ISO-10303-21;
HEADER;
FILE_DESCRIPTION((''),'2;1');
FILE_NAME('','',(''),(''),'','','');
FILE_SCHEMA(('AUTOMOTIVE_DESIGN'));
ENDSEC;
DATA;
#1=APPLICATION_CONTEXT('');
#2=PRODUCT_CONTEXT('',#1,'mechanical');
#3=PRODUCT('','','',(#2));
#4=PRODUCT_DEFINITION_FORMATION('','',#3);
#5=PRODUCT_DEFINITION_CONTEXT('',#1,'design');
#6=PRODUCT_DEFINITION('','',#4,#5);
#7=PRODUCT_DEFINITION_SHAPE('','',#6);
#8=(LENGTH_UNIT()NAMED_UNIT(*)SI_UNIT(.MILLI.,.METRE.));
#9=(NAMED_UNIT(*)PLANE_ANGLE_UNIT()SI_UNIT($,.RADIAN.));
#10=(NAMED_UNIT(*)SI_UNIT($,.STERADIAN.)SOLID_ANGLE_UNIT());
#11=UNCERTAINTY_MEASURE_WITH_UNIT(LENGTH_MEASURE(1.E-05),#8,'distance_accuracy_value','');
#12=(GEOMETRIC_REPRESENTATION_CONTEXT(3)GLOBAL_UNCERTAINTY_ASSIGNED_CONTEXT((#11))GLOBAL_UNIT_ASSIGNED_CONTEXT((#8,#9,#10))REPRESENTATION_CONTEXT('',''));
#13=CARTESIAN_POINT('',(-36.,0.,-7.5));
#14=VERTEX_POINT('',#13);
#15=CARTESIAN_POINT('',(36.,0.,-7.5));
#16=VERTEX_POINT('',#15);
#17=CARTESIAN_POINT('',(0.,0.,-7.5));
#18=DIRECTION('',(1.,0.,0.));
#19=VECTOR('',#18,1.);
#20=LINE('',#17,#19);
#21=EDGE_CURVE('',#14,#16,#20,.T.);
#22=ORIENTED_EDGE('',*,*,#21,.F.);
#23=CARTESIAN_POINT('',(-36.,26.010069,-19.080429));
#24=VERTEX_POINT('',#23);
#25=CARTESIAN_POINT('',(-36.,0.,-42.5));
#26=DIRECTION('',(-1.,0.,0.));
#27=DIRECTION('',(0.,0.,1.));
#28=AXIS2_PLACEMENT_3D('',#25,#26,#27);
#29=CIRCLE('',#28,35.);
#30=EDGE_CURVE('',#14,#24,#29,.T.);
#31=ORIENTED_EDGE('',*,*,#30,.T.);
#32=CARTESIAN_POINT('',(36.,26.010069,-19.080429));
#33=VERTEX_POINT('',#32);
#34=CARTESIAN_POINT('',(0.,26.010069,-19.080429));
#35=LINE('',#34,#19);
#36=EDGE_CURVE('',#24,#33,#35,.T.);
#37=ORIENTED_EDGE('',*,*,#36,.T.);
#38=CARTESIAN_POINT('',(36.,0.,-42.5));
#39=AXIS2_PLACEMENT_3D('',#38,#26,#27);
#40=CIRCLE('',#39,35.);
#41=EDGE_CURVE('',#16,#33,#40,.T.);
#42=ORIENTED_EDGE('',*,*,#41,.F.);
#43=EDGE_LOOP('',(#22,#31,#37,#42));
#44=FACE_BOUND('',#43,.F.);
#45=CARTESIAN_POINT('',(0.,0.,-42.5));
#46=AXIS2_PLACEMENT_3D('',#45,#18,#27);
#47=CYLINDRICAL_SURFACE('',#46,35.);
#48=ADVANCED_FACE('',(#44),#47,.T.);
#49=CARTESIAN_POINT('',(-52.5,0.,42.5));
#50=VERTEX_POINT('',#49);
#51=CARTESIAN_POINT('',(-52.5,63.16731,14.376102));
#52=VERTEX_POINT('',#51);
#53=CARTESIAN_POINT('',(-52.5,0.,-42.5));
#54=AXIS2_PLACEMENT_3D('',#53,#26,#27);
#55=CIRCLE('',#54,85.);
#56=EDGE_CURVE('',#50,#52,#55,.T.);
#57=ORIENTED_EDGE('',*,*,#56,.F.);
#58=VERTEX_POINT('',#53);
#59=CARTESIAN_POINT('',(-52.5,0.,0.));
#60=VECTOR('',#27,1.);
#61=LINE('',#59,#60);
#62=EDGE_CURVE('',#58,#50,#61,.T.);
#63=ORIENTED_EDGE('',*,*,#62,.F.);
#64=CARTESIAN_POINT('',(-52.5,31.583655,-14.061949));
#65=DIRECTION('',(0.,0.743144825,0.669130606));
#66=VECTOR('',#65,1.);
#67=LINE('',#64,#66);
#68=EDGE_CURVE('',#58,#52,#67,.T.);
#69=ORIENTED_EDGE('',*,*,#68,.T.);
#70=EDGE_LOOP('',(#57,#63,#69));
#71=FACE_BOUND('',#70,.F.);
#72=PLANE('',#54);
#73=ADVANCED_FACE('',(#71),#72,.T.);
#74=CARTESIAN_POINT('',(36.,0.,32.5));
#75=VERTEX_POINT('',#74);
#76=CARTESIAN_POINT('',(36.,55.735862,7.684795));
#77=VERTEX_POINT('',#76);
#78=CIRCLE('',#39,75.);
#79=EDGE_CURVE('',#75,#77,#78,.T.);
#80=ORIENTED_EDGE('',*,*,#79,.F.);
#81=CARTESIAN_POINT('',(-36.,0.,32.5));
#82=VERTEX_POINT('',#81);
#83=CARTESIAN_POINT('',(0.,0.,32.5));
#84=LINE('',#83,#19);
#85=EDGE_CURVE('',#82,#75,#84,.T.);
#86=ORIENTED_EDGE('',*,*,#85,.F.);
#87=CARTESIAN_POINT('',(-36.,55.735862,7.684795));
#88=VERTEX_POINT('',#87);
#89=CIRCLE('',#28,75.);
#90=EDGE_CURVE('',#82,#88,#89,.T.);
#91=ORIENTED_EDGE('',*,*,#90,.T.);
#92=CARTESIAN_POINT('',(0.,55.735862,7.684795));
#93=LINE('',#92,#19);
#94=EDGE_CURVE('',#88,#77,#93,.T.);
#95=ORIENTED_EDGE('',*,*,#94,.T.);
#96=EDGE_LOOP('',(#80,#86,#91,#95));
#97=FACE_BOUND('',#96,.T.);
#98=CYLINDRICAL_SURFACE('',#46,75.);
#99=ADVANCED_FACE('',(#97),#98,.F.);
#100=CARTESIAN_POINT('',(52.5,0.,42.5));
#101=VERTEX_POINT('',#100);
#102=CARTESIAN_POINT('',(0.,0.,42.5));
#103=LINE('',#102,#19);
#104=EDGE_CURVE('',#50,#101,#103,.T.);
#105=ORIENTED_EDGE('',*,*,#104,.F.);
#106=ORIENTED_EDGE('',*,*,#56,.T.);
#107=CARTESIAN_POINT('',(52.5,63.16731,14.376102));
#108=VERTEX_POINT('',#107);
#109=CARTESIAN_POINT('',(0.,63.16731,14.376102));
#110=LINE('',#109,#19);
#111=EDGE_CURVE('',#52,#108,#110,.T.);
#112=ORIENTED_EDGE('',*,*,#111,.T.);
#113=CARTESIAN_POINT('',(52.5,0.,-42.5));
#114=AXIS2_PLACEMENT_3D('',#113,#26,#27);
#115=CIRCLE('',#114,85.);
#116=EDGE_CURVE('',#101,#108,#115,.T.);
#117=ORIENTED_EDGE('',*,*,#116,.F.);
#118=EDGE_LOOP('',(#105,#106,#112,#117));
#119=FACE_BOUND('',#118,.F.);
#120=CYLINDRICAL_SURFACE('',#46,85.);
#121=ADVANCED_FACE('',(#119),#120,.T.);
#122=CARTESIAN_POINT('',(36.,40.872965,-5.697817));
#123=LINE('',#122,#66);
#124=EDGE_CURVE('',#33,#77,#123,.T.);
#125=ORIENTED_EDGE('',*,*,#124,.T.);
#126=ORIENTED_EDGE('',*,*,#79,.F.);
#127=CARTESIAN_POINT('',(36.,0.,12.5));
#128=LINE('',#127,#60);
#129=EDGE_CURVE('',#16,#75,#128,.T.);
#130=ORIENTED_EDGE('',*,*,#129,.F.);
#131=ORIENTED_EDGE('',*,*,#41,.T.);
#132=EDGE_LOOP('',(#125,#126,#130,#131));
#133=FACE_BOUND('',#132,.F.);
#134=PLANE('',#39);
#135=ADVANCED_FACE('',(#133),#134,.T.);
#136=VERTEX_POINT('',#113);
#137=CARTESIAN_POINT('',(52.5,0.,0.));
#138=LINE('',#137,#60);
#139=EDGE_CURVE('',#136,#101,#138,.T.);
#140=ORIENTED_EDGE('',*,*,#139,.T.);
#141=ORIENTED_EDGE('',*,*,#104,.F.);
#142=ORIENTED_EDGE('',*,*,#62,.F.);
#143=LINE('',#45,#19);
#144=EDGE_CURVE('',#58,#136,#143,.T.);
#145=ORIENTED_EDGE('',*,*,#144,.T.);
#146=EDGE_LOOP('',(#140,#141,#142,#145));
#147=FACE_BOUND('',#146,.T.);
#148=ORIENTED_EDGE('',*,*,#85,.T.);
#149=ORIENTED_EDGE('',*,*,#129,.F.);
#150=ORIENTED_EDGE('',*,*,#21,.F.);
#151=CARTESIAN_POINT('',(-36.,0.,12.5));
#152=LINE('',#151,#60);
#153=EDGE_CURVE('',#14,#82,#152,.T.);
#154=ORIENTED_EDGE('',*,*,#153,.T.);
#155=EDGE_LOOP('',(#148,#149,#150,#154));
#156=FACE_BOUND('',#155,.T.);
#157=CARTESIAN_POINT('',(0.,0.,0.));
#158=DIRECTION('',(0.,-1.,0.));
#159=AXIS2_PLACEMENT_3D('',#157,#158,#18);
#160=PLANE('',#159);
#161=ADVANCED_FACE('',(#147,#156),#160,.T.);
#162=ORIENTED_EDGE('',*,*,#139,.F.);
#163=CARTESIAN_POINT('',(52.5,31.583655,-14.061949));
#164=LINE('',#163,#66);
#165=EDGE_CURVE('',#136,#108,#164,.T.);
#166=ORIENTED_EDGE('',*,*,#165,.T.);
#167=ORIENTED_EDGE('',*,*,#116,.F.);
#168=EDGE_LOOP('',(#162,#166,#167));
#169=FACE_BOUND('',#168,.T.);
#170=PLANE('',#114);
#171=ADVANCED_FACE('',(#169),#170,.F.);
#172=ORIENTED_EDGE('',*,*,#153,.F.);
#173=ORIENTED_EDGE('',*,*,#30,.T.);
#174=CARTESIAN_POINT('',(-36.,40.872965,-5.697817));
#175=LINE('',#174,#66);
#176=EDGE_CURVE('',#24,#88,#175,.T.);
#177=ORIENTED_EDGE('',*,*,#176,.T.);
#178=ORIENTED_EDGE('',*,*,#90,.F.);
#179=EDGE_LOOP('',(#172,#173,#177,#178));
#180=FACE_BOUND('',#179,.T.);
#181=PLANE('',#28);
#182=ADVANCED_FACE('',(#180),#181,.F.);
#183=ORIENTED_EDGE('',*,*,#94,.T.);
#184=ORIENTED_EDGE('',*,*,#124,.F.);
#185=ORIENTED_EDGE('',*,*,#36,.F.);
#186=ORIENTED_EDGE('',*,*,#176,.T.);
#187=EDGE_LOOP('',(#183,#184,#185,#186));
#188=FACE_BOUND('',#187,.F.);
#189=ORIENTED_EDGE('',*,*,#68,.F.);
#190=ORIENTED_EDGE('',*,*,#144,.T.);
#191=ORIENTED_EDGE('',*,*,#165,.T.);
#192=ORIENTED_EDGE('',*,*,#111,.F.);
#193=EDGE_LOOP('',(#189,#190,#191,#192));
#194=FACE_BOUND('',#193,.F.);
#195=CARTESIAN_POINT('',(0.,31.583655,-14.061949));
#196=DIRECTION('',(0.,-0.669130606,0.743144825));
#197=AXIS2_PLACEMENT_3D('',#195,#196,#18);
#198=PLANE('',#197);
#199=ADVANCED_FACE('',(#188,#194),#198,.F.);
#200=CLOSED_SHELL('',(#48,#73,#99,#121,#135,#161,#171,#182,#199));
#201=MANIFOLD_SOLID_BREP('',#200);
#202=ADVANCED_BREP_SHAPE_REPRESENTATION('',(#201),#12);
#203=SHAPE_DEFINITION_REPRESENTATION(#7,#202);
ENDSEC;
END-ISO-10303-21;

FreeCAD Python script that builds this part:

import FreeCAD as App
import Part
import Sketcher
from FreeCAD import Vector
Q = App.Units.Quantity

doc = App.newDocument("Part")
body = doc.addObject("PartDesign::Body", "Body")

sketch1 = body.newObject("Sketcher::SketchObject", "Sketch")
sketch1.AttachmentSupport = (doc.getObject("XZ_Plane"), [""])
sketch1.MapMode = "FlatFace"
sketch1.addGeometry(Part.LineSegment(Vector(-52, 42, 0), Vector(-52, -42, 0)), False)
sketch1.addGeometry(Part.LineSegment(Vector(-52, -42, 0), Vector(52, -42, 0)), False)
sketch1.addGeometry(Part.LineSegment(Vector(52, -42, 0), Vector(52, 42, 0)), False)
sketch1.addGeometry(Part.LineSegment(Vector(52, 42, 0), Vector(-52, 42, 0)), False)
sketch1.addGeometry(Part.LineSegment(Vector(36, -8, 0), Vector(-36, -8, 0)), False)
sketch1.addGeometry(Part.LineSegment(Vector(-36, -8, 0), Vector(-36, 32, 0)), False)
sketch1.addGeometry(Part.LineSegment(Vector(-36, 32, 0), Vector(36, 32, 0)), False)
sketch1.addGeometry(Part.LineSegment(Vector(36, 32, 0), Vector(36, -8, 0)), False)
sketch1.addGeometry(Part.LineSegment(Vector(52, -42, 0), Vector(-52, -42, 0)), True)
sketch1.addConstraint(Sketcher.Constraint("Coincident", 0, 2, 1, 1))
sketch1.addConstraint(Sketcher.Constraint("Coincident", 1, 2, 2, 1))
sketch1.addConstraint(Sketcher.Constraint("Coincident", 2, 2, 3, 1))
sketch1.addConstraint(Sketcher.Constraint("Coincident", 3, 2, 0, 1))
sketch1.addConstraint(Sketcher.Constraint("Coincident", 4, 2, 5, 1))
sketch1.addConstraint(Sketcher.Constraint("Coincident", 5, 2, 6, 1))
sketch1.addConstraint(Sketcher.Constraint("Coincident", 6, 2, 7, 1))
sketch1.addConstraint(Sketcher.Constraint("Coincident", 7, 2, 4, 1))
sketch1.addConstraint(Sketcher.Constraint("Vertical", 0))
sketch1.addConstraint(Sketcher.Constraint("Horizontal", 1))
sketch1.addConstraint(Sketcher.Constraint("Vertical", 2))
sketch1.addConstraint(Sketcher.Constraint("Horizontal", 3))
sketch1.addConstraint(Sketcher.Constraint("Horizontal", 4))
sketch1.addConstraint(Sketcher.Constraint("Vertical", 5))
sketch1.addConstraint(Sketcher.Constraint("Horizontal", 6))
sketch1.addConstraint(Sketcher.Constraint("Vertical", 7))
sketch1.addConstraint(Sketcher.Constraint("Horizontal", 8))
sketch1.addConstraint(Sketcher.Constraint("Coincident", 8, 1, 1, 2))
sketch1.addConstraint(Sketcher.Constraint("Symmetric", 0, 2, 2, 2, -1, 1))
sketch1.addConstraint(Sketcher.Constraint("Vertical", 3, 2, 8, 2))
sketch1.addConstraint(Sketcher.Constraint("DistanceX", 1, 1, 1, 2, Q("105 mm")))
sketch1.addConstraint(Sketcher.Constraint("DistanceX", 4, 2, 4, 1, Q("72 mm")))
sketch1.addConstraint(Sketcher.Constraint("DistanceY", 0, 2, 0, 1, Q("85 mm")))
sketch1.addConstraint(Sketcher.Constraint("DistanceY", 5, 1, 5, 2, Q("40 mm")))
sketch1.addConstraint(Sketcher.Constraint("DistanceX", 4, 2, -1, 1, Q("36 mm")))
sketch1.addConstraint(Sketcher.Constraint("DistanceY", 0, 2, 4, 2, Q("35 mm")))
revolution = body.newObject("PartDesign::Revolution", "Revolution")
revolution.Profile = sketch1
revolution.ReferenceAxis = (sketch1, ["Axis0"])
revolution.Angle = 48

doc.recompute()
